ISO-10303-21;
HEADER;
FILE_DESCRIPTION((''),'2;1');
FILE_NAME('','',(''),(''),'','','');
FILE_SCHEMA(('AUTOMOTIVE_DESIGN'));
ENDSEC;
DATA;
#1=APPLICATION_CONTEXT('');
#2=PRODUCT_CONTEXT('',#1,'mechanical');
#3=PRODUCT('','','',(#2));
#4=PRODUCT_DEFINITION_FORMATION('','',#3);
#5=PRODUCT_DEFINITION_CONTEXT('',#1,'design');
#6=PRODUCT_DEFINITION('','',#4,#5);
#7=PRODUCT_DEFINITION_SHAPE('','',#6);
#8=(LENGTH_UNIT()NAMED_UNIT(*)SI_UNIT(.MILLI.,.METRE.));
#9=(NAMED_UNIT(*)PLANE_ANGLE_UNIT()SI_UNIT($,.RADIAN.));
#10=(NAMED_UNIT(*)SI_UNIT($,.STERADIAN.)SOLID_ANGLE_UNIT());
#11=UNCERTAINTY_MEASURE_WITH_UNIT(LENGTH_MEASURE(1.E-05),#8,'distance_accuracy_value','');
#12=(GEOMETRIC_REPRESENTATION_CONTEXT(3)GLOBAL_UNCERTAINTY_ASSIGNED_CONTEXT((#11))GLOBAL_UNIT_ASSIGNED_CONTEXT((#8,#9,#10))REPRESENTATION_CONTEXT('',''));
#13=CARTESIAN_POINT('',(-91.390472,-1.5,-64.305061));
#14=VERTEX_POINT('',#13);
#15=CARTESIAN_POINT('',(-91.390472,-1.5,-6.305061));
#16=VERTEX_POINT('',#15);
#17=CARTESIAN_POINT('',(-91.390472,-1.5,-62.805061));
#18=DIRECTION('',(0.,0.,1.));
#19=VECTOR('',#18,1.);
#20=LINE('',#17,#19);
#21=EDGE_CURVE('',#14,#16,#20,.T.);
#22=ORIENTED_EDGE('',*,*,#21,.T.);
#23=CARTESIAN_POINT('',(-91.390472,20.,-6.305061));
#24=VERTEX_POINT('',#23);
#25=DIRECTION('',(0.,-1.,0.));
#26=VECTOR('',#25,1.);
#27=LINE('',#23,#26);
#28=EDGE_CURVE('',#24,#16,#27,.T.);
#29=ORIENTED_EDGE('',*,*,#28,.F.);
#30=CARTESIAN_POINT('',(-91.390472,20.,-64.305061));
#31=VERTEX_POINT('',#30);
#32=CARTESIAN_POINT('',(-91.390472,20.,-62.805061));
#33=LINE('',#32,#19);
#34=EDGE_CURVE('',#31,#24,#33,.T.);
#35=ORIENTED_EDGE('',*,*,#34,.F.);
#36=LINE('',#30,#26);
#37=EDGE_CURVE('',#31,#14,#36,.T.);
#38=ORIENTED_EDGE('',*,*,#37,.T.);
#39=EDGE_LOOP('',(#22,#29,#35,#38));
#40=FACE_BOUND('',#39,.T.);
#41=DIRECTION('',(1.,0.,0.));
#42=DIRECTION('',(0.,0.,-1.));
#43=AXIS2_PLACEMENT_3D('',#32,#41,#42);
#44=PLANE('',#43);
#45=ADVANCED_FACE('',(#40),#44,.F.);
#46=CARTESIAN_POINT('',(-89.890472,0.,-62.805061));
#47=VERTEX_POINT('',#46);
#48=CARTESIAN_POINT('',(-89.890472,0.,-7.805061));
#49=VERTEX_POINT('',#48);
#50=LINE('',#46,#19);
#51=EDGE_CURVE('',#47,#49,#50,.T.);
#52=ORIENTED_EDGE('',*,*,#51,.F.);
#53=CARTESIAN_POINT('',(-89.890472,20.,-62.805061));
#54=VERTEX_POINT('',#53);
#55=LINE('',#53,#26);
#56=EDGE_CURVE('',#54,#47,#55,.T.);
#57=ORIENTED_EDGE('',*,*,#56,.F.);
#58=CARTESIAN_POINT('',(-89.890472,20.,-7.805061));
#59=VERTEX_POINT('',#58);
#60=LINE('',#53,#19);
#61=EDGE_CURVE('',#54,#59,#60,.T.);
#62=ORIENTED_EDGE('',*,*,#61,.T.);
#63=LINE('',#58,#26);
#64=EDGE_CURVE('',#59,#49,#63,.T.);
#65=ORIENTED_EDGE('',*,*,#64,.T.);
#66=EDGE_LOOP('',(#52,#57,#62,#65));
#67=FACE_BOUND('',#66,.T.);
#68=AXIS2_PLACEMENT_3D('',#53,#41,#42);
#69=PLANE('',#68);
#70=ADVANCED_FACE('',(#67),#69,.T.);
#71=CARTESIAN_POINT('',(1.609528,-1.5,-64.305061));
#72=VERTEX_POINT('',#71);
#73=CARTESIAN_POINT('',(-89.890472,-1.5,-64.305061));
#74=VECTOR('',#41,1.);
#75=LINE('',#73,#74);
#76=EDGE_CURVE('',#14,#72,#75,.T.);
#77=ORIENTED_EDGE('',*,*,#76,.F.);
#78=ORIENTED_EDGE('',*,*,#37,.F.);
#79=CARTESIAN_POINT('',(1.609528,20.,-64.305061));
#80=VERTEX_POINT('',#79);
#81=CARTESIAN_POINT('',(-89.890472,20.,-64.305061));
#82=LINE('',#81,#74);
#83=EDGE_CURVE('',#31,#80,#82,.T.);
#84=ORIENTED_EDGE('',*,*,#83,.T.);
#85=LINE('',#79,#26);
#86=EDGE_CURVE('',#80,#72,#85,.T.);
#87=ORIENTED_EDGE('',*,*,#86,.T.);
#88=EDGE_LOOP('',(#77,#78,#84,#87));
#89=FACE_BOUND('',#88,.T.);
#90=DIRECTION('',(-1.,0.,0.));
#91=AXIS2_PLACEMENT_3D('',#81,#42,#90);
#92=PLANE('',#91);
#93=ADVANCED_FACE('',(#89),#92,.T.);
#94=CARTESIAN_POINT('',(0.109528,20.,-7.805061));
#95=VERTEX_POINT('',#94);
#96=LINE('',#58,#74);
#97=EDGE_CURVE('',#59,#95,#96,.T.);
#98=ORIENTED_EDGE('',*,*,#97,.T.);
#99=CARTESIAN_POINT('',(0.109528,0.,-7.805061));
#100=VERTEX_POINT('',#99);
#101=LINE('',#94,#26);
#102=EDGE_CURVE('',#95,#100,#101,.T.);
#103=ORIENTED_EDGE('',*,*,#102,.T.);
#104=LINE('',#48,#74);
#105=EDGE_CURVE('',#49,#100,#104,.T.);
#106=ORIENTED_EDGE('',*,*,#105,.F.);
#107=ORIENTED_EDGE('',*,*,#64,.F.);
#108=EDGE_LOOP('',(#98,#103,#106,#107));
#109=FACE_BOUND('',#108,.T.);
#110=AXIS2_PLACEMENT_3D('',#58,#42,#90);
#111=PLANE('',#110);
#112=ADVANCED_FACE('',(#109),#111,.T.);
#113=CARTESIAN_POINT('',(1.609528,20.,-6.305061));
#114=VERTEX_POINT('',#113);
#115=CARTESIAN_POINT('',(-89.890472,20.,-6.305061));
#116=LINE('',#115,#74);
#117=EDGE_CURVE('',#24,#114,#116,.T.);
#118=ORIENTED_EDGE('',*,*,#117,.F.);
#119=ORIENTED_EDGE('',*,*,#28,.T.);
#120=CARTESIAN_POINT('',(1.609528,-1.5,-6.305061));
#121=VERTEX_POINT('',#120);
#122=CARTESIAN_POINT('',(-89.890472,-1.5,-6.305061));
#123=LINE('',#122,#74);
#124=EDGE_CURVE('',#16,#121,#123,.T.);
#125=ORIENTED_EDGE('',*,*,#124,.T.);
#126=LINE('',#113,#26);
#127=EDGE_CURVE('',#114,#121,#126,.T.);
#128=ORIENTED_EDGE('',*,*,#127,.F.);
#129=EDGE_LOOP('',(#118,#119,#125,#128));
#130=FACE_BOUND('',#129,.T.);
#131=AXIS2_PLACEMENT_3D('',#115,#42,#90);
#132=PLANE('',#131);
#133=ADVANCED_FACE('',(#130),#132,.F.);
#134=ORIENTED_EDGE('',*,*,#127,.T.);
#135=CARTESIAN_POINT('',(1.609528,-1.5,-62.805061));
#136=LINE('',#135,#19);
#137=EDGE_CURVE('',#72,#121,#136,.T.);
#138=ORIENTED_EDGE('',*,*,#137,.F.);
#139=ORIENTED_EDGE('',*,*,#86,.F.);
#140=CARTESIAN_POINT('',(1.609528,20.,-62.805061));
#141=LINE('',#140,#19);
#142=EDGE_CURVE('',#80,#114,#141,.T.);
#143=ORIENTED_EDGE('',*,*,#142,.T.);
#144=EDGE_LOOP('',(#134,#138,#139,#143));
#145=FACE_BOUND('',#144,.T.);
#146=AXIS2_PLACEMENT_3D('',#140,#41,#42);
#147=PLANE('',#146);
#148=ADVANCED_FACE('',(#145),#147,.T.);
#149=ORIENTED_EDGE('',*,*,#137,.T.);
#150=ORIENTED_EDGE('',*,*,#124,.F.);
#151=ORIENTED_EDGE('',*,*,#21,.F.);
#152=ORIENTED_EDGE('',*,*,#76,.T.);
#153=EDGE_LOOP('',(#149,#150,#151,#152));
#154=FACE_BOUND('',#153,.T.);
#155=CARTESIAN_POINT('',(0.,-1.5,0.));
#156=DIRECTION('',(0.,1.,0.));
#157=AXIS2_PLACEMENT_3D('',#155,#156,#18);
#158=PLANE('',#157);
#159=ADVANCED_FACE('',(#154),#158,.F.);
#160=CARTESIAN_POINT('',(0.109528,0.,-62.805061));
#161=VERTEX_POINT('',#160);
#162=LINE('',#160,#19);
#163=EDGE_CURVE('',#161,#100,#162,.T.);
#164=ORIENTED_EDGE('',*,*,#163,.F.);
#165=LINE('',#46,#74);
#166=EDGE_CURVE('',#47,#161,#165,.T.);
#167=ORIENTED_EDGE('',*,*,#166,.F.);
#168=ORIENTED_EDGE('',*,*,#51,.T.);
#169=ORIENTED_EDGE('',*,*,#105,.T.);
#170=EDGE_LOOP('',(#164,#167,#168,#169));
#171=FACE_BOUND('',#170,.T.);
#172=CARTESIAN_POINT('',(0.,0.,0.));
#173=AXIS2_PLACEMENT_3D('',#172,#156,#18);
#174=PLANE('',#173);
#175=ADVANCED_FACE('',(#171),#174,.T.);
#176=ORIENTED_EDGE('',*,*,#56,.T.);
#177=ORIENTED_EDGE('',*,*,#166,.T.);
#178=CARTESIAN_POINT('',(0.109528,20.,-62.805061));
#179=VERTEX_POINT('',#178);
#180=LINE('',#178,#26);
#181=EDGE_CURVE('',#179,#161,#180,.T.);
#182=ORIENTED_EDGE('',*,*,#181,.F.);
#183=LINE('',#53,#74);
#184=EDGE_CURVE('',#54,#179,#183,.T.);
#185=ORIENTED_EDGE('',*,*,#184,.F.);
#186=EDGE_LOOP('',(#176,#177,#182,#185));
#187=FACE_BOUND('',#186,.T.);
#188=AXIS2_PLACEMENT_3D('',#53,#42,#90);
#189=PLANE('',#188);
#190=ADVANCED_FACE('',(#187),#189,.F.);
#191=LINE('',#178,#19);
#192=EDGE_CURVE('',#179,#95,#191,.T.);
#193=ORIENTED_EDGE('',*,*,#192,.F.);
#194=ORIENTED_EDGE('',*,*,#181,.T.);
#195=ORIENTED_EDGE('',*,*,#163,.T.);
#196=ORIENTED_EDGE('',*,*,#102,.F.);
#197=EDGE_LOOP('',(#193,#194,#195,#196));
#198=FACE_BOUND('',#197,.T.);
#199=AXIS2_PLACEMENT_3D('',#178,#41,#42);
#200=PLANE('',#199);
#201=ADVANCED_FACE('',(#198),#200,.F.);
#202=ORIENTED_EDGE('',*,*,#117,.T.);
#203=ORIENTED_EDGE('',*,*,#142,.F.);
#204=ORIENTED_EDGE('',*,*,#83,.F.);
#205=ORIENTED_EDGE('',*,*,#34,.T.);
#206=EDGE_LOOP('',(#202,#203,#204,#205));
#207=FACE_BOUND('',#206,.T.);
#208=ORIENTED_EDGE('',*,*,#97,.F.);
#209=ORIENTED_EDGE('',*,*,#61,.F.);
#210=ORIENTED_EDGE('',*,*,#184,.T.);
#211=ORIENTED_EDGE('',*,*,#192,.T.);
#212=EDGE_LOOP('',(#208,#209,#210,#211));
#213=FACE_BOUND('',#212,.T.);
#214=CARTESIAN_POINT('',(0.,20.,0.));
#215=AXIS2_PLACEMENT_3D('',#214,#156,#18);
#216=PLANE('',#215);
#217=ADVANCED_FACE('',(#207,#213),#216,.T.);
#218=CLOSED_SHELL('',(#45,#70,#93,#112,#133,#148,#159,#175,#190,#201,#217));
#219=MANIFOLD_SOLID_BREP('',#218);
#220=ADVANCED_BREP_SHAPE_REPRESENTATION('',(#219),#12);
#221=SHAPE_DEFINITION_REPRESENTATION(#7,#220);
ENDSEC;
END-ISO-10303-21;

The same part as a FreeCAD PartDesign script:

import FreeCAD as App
import Part
import Sketcher
from FreeCAD import Vector


def faces_at(feature, points):
    """Names of the faces that lie closest to the given points."""
    faces = feature.Shape.Faces
    near = lambda p: min(range(len(faces)), key=lambda i: faces[i].distToShape(Part.Vertex(*p))[0])
    return sorted({f"Face{near(p) + 1}" for p in points})


def add_polygon(sketch, points):
    """Adds a closed chain of lines whose ends are joined by coincident constraints."""
    first, n = sketch.GeometryCount, len(points)
    for a, b in zip(points, points[1:] + points[:1]):
        sketch.addGeometry(Part.LineSegment(App.Vector(*a, 0), App.Vector(*b, 0)), False)
    for i in range(n):
        sketch.addConstraint(Sketcher.Constraint("Coincident", first + i, 2, first + (i + 1) % n, 1))

doc = App.newDocument("Part")
body = doc.addObject("PartDesign::Body", "Body")

sketch1 = doc.addObject("Sketcher::SketchObject", "Sketch")
body.addObject(sketch1)
sketch1.AttachmentSupport = (doc.XZ_Plane, [""])
sketch1.MapMode = "FlatFace"
add_polygon(sketch1, [(-90, -63), (-90, -8), (0, -8), (0, -63)])
sketch1.addConstraint([
    Sketcher.Constraint("Vertical", 0),
    Sketcher.Constraint("Horizontal", 1),
    Sketcher.Constraint("Vertical", 2),
    Sketcher.Constraint("Horizontal", 3),
    Sketcher.Constraint("DistanceX", 1, 1, 1, 2, 90.0),
    Sketcher.Constraint("DistanceY", 0, 1, 0, 2, 55.0),
    Sketcher.Constraint("DistanceX", 0, 2, -1, 1, 89.890472),
    Sketcher.Constraint("DistanceY", 0, 2, -1, 1, 7.805061),
])
pad1 = doc.addObject("PartDesign::Pad", "Pad")
body.addObject(pad1)
pad1.Profile = sketch1
pad1.Length = 20
pad1.Reversed = True
doc.recompute()

thickness = doc.addObject("PartDesign::Thickness", "Thickness")
body.addObject(thickness)
thickness.Base = (pad1, faces_at(pad1, [(-44.89, 20, -35.305)]))
thickness.Value = 1.5
thickness.Reversed = False
thickness.Join = "Intersection"

doc.recompute()
